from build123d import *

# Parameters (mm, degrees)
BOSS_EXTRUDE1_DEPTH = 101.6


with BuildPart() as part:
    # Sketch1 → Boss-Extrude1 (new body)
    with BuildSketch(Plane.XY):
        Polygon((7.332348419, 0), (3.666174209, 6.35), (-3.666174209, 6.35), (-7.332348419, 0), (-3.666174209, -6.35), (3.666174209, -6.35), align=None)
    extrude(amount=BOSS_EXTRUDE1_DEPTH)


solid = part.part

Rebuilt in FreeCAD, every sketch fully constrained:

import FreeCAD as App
import Part
import Sketcher

V = App.Vector
Q = App.Units.Quantity


def add_polygon(sketch, points):
    """Adds a closed chain of lines whose ends are joined by coincident constraints."""
    first, n = sketch.GeometryCount, len(points)
    for a, b in zip(points, points[1:] + points[:1]):
        sketch.addGeometry(Part.LineSegment(App.Vector(*a, 0), App.Vector(*b, 0)), False)
    for i in range(n):
        sketch.addConstraint(Sketcher.Constraint("Coincident", first + i, 2, first + (i + 1) % n, 1))

doc = App.newDocument("Part")
body = doc.addObject("PartDesign::Body", "Body")

sketch1 = body.newObject("Sketcher::SketchObject", "Sketch")
sketch1.AttachmentSupport = (doc.getObject("XY_Plane"), [""])
sketch1.MapMode = "FlatFace"
add_polygon(sketch1, [(7.332348, 0), (3.666174, 6.35), (-3.666174, 6.35), (-7.332348, 0), (-3.666174, -6.35), (3.666174, -6.35)])
sketch1.addConstraint([
    Sketcher.Constraint("Horizontal", 1),
    Sketcher.Constraint("Horizontal", 4),
    Sketcher.Constraint("Symmetric", 0, 2, 3, 2, -1, 1),
    Sketcher.Constraint("Symmetric", 2, 2, 5, 2, -1, 1),
    Sketcher.Constraint("PointOnObject", 2, 2, -1),
    Sketcher.Constraint("Parallel", 2, 5),
    Sketcher.Constraint("Vertical", 1, 2, 3, 2),
    Sketcher.Constraint("Angle", 0, Q("120 deg")),
    Sketcher.Constraint("DistanceY", 3, 2, 1, 2, Q("0.5 in")),
    Sketcher.Constraint("DistanceX", 1, 2, 1, 1, 7.332348),
])
pad1 = body.newObject("PartDesign::Pad", "Pad")
pad1.Profile = sketch1
pad1.Length = Q("4 in")

doc.recompute()
